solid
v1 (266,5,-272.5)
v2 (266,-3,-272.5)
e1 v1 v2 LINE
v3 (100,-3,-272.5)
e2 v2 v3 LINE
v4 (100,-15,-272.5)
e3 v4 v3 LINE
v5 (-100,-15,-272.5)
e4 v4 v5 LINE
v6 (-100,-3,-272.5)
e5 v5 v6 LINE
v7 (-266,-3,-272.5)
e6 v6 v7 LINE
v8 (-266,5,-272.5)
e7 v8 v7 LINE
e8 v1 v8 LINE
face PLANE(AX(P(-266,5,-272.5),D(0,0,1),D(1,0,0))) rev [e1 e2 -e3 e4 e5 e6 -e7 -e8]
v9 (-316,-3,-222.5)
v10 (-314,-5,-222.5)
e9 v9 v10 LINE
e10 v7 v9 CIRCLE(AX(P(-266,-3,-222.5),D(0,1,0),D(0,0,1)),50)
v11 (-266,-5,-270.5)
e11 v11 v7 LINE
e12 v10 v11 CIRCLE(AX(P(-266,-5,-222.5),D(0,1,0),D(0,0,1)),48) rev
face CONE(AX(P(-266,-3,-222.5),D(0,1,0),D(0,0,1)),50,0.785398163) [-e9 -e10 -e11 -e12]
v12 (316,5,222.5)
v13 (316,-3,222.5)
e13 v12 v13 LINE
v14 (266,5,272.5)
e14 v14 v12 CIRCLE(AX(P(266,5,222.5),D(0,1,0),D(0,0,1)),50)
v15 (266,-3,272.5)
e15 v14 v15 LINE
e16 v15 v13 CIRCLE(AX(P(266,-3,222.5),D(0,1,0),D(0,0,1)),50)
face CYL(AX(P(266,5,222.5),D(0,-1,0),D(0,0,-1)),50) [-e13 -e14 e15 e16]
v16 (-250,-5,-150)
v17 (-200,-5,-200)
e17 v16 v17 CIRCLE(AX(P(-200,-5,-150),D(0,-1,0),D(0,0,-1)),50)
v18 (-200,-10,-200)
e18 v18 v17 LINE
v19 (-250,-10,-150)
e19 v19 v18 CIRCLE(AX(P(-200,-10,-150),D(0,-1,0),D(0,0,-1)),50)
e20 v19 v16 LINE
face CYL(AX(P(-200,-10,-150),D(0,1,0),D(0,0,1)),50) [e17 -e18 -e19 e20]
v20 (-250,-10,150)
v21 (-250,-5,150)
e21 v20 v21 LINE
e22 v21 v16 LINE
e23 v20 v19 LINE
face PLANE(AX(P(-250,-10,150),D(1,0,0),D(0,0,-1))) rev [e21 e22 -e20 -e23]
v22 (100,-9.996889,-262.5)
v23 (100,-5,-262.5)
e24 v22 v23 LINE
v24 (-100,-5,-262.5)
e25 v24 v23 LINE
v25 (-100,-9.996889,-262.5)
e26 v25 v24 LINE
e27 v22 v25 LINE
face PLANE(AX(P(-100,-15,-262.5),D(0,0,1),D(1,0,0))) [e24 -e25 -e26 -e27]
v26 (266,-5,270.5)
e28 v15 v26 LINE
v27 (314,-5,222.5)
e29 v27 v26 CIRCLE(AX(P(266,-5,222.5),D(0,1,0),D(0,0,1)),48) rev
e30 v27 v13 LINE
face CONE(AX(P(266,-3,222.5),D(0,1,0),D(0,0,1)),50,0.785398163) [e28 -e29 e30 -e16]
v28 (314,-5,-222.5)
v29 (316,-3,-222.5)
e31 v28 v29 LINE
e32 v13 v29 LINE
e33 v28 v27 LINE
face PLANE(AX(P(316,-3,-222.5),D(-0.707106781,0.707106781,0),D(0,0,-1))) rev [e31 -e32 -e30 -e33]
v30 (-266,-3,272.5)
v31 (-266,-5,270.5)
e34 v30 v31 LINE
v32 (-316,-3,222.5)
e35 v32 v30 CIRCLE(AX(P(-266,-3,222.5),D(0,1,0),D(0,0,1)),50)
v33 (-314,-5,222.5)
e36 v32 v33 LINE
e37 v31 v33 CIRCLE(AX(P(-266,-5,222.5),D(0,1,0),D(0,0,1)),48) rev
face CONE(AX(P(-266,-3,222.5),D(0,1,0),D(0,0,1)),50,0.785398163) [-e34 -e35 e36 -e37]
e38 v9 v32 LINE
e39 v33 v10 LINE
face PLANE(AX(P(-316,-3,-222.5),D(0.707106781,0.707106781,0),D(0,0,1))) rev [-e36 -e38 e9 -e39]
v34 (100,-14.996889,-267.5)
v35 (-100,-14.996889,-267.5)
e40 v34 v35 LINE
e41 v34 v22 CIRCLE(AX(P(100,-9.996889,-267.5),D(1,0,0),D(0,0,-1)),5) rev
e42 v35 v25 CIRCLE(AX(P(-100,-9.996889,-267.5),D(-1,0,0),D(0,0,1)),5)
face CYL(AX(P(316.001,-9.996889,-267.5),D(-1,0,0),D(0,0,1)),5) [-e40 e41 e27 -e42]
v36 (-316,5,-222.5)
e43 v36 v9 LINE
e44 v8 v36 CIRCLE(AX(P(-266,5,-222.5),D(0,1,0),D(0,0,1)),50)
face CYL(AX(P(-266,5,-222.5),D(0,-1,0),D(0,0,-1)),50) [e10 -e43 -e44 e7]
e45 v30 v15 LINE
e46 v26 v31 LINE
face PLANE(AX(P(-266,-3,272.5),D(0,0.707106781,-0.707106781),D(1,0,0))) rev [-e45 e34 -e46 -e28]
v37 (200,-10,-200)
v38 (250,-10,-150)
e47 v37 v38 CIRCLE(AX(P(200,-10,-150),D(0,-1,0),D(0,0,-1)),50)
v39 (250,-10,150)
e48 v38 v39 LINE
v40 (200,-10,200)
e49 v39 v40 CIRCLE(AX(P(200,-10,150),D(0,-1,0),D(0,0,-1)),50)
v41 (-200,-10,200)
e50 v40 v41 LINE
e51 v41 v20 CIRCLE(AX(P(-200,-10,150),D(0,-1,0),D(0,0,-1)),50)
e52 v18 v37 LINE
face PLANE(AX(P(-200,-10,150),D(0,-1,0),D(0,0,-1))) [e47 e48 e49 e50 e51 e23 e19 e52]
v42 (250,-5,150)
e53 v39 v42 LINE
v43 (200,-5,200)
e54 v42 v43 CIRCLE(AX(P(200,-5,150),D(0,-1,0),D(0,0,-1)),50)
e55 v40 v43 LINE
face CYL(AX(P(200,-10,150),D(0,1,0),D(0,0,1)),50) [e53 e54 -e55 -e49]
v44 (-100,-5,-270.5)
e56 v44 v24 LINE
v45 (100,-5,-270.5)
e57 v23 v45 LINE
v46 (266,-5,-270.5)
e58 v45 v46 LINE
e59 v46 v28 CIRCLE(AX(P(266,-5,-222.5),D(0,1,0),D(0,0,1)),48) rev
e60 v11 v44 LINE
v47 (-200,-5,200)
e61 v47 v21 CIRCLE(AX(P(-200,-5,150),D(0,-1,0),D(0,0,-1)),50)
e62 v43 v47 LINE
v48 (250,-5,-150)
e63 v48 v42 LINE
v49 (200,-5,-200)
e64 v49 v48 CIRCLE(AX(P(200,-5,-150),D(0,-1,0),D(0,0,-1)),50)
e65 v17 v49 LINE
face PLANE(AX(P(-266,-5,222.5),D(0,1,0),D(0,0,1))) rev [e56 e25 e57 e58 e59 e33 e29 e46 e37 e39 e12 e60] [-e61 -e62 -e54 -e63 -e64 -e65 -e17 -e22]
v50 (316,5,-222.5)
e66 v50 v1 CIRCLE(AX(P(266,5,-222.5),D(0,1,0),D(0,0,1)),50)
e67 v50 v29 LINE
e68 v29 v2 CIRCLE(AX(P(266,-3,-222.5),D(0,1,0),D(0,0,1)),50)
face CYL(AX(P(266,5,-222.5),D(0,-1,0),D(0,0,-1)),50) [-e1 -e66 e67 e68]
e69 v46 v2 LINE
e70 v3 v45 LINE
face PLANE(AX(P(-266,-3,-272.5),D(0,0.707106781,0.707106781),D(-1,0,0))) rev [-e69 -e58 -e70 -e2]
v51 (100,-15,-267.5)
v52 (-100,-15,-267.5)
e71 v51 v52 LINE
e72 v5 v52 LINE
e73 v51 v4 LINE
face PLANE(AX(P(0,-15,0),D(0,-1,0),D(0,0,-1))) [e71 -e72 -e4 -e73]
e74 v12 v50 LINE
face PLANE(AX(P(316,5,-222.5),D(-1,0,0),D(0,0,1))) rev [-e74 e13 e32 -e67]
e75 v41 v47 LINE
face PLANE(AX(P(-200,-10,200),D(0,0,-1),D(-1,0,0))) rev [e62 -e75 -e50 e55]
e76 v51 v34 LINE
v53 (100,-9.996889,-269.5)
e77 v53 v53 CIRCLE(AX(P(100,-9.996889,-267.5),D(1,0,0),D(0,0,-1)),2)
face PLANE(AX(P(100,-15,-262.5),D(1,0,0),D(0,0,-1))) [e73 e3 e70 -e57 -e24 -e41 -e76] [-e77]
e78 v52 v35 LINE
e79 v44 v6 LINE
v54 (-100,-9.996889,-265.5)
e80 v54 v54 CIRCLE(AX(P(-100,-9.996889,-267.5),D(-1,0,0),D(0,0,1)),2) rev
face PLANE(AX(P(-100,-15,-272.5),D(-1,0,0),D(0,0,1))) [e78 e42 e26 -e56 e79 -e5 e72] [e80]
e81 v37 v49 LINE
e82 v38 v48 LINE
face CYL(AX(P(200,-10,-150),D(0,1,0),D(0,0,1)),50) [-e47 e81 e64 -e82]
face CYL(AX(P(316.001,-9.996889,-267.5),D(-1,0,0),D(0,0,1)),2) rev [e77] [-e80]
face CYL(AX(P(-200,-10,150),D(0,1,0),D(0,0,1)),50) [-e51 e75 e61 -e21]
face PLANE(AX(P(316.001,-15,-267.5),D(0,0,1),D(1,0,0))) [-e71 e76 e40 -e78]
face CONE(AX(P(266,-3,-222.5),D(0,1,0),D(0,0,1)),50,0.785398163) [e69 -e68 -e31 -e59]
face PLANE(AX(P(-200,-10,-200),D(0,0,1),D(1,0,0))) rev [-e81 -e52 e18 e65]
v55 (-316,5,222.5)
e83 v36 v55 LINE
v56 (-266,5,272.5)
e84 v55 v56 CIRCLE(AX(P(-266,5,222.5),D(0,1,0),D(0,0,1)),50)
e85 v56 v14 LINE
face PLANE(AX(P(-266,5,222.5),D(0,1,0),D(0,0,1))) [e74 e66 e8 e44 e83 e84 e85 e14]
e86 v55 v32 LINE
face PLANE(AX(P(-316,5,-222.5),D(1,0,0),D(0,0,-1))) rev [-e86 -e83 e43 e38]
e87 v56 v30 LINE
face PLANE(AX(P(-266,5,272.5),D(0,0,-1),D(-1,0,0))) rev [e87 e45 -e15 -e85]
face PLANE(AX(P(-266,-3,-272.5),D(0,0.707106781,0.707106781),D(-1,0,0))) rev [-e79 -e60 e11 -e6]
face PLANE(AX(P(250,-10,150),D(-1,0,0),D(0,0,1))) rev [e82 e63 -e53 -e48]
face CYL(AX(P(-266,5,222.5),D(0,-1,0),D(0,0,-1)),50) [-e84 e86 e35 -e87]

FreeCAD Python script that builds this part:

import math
import FreeCAD as App
import Part
import Sketcher
from FreeCAD import Vector
Q = App.Units.Quantity


def edges_at(feature, points):
    """Names of the edges that pass closest to the given points."""
    edges = feature.Shape.Edges
    near = lambda p: min(range(len(edges)), key=lambda i: edges[i].distToShape(Part.Vertex(*p))[0])
    return sorted({f"Edge{near(p) + 1}" for p in points})

doc = App.newDocument("Part")
body = doc.addObject("PartDesign::Body", "Body")

# Sketch on XZ plane
sketch1 = body.newObject("Sketcher::SketchObject", "Sketch")
sketch1.AttachmentSupport = (doc.getObject("XZ_Plane"), [""])
sketch1.MapMode = "FlatFace"
sketch1.addGeometry(Part.LineSegment(Vector(266, -272, 0), Vector(-266, -272, 0)), False)
sketch1.addGeometry(Part.ArcOfCircle(Part.Circle(Vector(-266, -222, 0), Vector(0, 0, 1), 50), math.radians(-180), math.radians(-90)), False)
sketch1.addGeometry(Part.LineSegment(Vector(-316, -222, 0), Vector(-316, 222, 0)), False)
sketch1.addGeometry(Part.ArcOfCircle(Part.Circle(Vector(-266, 222, 0), Vector(0, 0, 1), 50), math.radians(90), math.radians(180)), False)
sketch1.addGeometry(Part.LineSegment(Vector(-266, 272, 0), Vector(266, 272, 0)), False)
sketch1.addGeometry(Part.ArcOfCircle(Part.Circle(Vector(266, 222, 0), Vector(0, 0, 1), 50), math.radians(0), math.radians(90)), False)
sketch1.addGeometry(Part.LineSegment(Vector(316, 222, 0), Vector(316, -222, 0)), False)
sketch1.addGeometry(Part.ArcOfCircle(Part.Circle(Vector(266, -222, 0), Vector(0, 0, 1), 50), math.radians(-90), math.radians(0)), False)
sketch1.addConstraint(Sketcher.Constraint("Tangent", 0, 2, 1, 2))
sketch1.addConstraint(Sketcher.Constraint("Tangent", 1, 1, 2, 1))
sketch1.addConstraint(Sketcher.Constraint("Tangent", 2, 2, 3, 2))
sketch1.addConstraint(Sketcher.Constraint("Tangent", 3, 1, 4, 1))
sketch1.addConstraint(Sketcher.Constraint("Tangent", 4, 2, 5, 2))
sketch1.addConstraint(Sketcher.Constraint("Tangent", 5, 1, 6, 1))
sketch1.addConstraint(Sketcher.Constraint("Tangent", 6, 2, 7, 2))
sketch1.addConstraint(Sketcher.Constraint("Tangent", 7, 1, 0, 1))
sketch1.addConstraint(Sketcher.Constraint("Horizontal", 0))
sketch1.addConstraint(Sketcher.Constraint("Vertical", 2))
sketch1.addConstraint(Sketcher.Constraint("Horizontal", 4))
sketch1.addConstraint(Sketcher.Constraint("Vertical", 6))
sketch1.addConstraint(Sketcher.Constraint("Equal", 1, 3))
sketch1.addConstraint(Sketcher.Constraint("Equal", 3, 5))
sketch1.addConstraint(Sketcher.Constraint("Equal", 5, 7))
sketch1.addConstraint(Sketcher.Constraint("Symmetric", 1, 3, 5, 3, -1, 1))
sketch1.addConstraint(Sketcher.Constraint("Radius", 1, Q("50 mm")))
sketch1.addConstraint(Sketcher.Constraint("DistanceX", 0, 2, 0, 1, Q("532 mm")))
sketch1.addConstraint(Sketcher.Constraint("DistanceY", 2, 1, 2, 2, Q("445 mm")))
pad1 = body.newObject("PartDesign::Pad", "Pad")
pad1.Profile = sketch1
pad1.Length = 10
pad1.Midplane = True
doc.recompute()

chamfer = body.newObject("PartDesign::Chamfer", "Chamfer")
chamfer.Base = (pad1, edges_at(pad1, [
    (316, -5, 0),
    (301.355, -5, 257.855),
    (0, -5, 272.5),
    (-301.355, -5, 257.855),
    (-316, -5, 0),
    (-301.355, -5, -257.855),
    (0, -5, -272.5),
    (301.355, -5, -257.855),
]))
chamfer.Size = 2

# Sketch on XZ plane
sketch2 = body.newObject("Sketcher::SketchObject", "Sketch001")
sketch2.AttachmentSupport = (doc.getObject("XZ_Plane"), [""])
sketch2.MapMode = "FlatFace"
sketch2.AttachmentOffset = App.Placement(Vector(0, 0, -5), App.Rotation())
sketch2.addGeometry(Part.LineSegment(Vector(-100, -272, 0), Vector(-100, -262, 0)), False)
sketch2.addGeometry(Part.LineSegment(Vector(-100, -262, 0), Vector(100, -262, 0)), False)
sketch2.addGeometry(Part.LineSegment(Vector(100, -262, 0), Vector(100, -272, 0)), False)
sketch2.addGeometry(Part.LineSegment(Vector(100, -272, 0), Vector(-100, -272, 0)), False)
sketch2.addConstraint(Sketcher.Constraint("Coincident", 0, 2, 1, 1))
sketch2.addConstraint(Sketcher.Constraint("Coincident", 1, 2, 2, 1))
sketch2.addConstraint(Sketcher.Constraint("Coincident", 2, 2, 3, 1))
sketch2.addConstraint(Sketcher.Constraint("Coincident", 3, 2, 0, 1))
sketch2.addConstraint(Sketcher.Constraint("Vertical", 0))
sketch2.addConstraint(Sketcher.Constraint("Horizontal", 1))
sketch2.addConstraint(Sketcher.Constraint("Vertical", 2))
sketch2.addConstraint(Sketcher.Constraint("Horizontal", 3))
sketch2.addConstraint(Sketcher.Constraint("DistanceX", 1, 1, 1, 2, Q("200 mm")))
sketch2.addConstraint(Sketcher.Constraint("DistanceY", 0, 1, 0, 2, Q("10 mm")))
sketch2.addConstraint(Sketcher.Constraint("DistanceX", 0, 2, -1, 1, Q("100 mm")))
sketch2.addConstraint(Sketcher.Constraint("DistanceY", 0, 2, -1, 1, Q("262.5 mm")))
pad2 = body.newObject("PartDesign::Pad", "Pad001")
pad2.Profile = sketch2
pad2.Length = 20

# Sketch on YZ plane
sketch3 = body.newObject("Sketcher::SketchObject", "Sketch002")
sketch3.AttachmentSupport = (doc.getObject("YZ_Plane"), [""])
sketch3.MapMode = "FlatFace"
sketch3.addGeometry(Part.Circle(Vector(-10, -267.5, 0), Vector(0, 0, 1), 2), False)
sketch3.addConstraint(Sketcher.Constraint("Diameter", 0, Q("4 mm")))
sketch3.addConstraint(Sketcher.Constraint("DistanceY", 0, 3, -1, 1, Q("267.5 mm")))
sketch3.addConstraint(Sketcher.Constraint("DistanceX", 0, 3, -1, 1, Q("9.996889 mm")))
pocket1 = body.newObject("PartDesign::Pocket", "Pocket")
pocket1.Profile = sketch3
pocket1.Type = "UpToFirst"

# Sketch on YZ plane
sketch4 = body.newObject("Sketcher::SketchObject", "Sketch003")
sketch4.AttachmentSupport = (doc.getObject("YZ_Plane"), [""])
sketch4.MapMode = "FlatFace"
sketch4.addGeometry(Part.LineSegment(Vector(-15, -267.5, 0), Vector(-14.9969, -267.5, 0)), False)
sketch4.addGeometry(Part.ArcOfCircle(Part.Circle(Vector(-9.9969, -267.5, 0), Vector(0, 0, 1), 5), math.radians(90), math.radians(180)), False)
sketch4.addGeometry(Part.LineSegment(Vector(-9.9969, -262.5, 0), Vector(-15, -262.5, 0)), False)
sketch4.addGeometry(Part.LineSegment(Vector(-15, -262.5, 0), Vector(-15, -267.5, 0)), False)
sketch4.addConstraint(Sketcher.Constraint("Coincident", 0, 2, 1, 2))
sketch4.addConstraint(Sketcher.Constraint("Tangent", 1, 1, 2, 1))
sketch4.addConstraint(Sketcher.Constraint("Coincident", 2, 2, 3, 1))
sketch4.addConstraint(Sketcher.Constraint("Coincident", 3, 2, 0, 1))
sketch4.addConstraint(Sketcher.Constraint("Horizontal", 0))
sketch4.addConstraint(Sketcher.Constraint("Horizontal", 2))
sketch4.addConstraint(Sketcher.Constraint("Vertical", 3))
sketch4.addConstraint(Sketcher.Constraint("Horizontal", 1, 3, 0, 2))
sketch4.addConstraint(Sketcher.Constraint("Radius", 1, Q("5 mm")))
sketch4.addConstraint(Sketcher.Constraint("DistanceX", 2, 2, -1, 1, Q("15 mm")))
sketch4.addConstraint(Sketcher.Constraint("DistanceY", 1, 3, -1, 1, Q("267.5 mm")))
sketch4.addConstraint(Sketcher.Constraint("DistanceX", 0, 1, 0, 2, Q("0.003111 mm")))
pocket2 = body.newObject("PartDesign::Pocket", "Pocket001")
pocket2.Profile = sketch4
pocket2.Type = "UpToFirst"

# Sketch on YZ plane
sketch5 = body.newObject("Sketcher::SketchObject", "Sketch004")
sketch5.AttachmentSupport = (doc.getObject("YZ_Plane"), [""])
sketch5.MapMode = "FlatFace"
sketch5.addGeometry(Part.Circle(Vector(-10, -267.5, 0), Vector(0, 0, 1), 2), False)
sketch5.addConstraint(Sketcher.Constraint("Diameter", 0, Q("4 mm")))
sketch5.addConstraint(Sketcher.Constraint("DistanceY", 0, 3, -1, 1, Q("267.5 mm")))
sketch5.addConstraint(Sketcher.Constraint("DistanceX", 0, 3, -1, 1, Q("9.996889 mm")))
pocket3 = body.newObject("PartDesign::Pocket", "Pocket002")
pocket3.Profile = sketch5
pocket3.Type = "UpToFirst"
pocket3.Reversed = True

# Sketch on YZ plane
sketch6 = body.newObject("Sketcher::SketchObject", "Sketch005")
sketch6.AttachmentSupport = (doc.getObject("YZ_Plane"), [""])
sketch6.MapMode = "FlatFace"
sketch6.addGeometry(Part.LineSegment(Vector(-15, -267.5, 0), Vector(-14.9969, -267.5, 0)), False)
sketch6.addGeometry(Part.ArcOfCircle(Part.Circle(Vector(-9.9969, -267.5, 0), Vector(0, 0, 1), 5), math.radians(90), math.radians(180)), False)
sketch6.addGeometry(Part.LineSegment(Vector(-9.9969, -262.5, 0), Vector(-15, -262.5, 0)), False)
sketch6.addGeometry(Part.LineSegment(Vector(-15, -262.5, 0), Vector(-15, -267.5, 0)), False)
sketch6.addConstraint(Sketcher.Constraint("Coincident", 0, 2, 1, 2))
sketch6.addConstraint(Sketcher.Constraint("Tangent", 1, 1, 2, 1))
sketch6.addConstraint(Sketcher.Constraint("Coincident", 2, 2, 3, 1))
sketch6.addConstraint(Sketcher.Constraint("Coincident", 3, 2, 0, 1))
sketch6.addConstraint(Sketcher.Constraint("Horizontal", 0))
sketch6.addConstraint(Sketcher.Constraint("Horizontal", 2))
sketch6.addConstraint(Sketcher.Constraint("Vertical", 3))
sketch6.addConstraint(Sketcher.Constraint("Horizontal", 1, 3, 0, 2))
sketch6.addConstraint(Sketcher.Constraint("Radius", 1, Q("5 mm")))
sketch6.addConstraint(Sketcher.Constraint("DistanceX", 2, 2, -1, 1, Q("15 mm")))
sketch6.addConstraint(Sketcher.Constraint("DistanceY", 1, 3, -1, 1, Q("267.5 mm")))
sketch6.addConstraint(Sketcher.Constraint("DistanceX", 0, 1, 0, 2, Q("0.003111 mm")))
pocket4 = body.newObject("PartDesign::Pocket", "Pocket003")
pocket4.Profile = sketch6
pocket4.Type = "UpToFirst"
pocket4.Reversed = True

# Sketch on XZ plane
sketch7 = body.newObject("Sketcher::SketchObject", "Sketch006")
sketch7.AttachmentSupport = (doc.getObject("XZ_Plane"), [""])
sketch7.MapMode = "FlatFace"
sketch7.AttachmentOffset = App.Placement(Vector(0, 0, 5), App.Rotation())
sketch7.addGeometry(Part.LineSegment(Vector(200, 200, 0), Vector(-200, 200, 0)), False)
sketch7.addGeometry(Part.ArcOfCircle(Part.Circle(Vector(-200, 150, 0), Vector(0, 0, 1), 50), math.radians(90), math.radians(180)), False)
sketch7.addGeometry(Part.LineSegment(Vector(-250, 150, 0), Vector(-250, -150, 0)), False)
sketch7.addGeometry(Part.ArcOfCircle(Part.Circle(Vector(-200, -150, 0), Vector(0, 0, 1), 50), math.radians(-180), math.radians(-90)), False)
sketch7.addGeometry(Part.LineSegment(Vector(-200, -200, 0), Vector(200, -200, 0)), False)
sketch7.addGeometry(Part.ArcOfCircle(Part.Circle(Vector(200, -150, 0), Vector(0, 0, 1), 50), math.radians(-90), math.radians(0)), False)
sketch7.addGeometry(Part.LineSegment(Vector(250, -150, 0), Vector(250, 150, 0)), False)
sketch7.addGeometry(Part.ArcOfCircle(Part.Circle(Vector(200, 150, 0), Vector(0, 0, 1), 50), math.radians(0), math.radians(90)), False)
sketch7.addConstraint(Sketcher.Constraint("Tangent", 0, 2, 1, 1))
sketch7.addConstraint(Sketcher.Constraint("Tangent", 1, 2, 2, 1))
sketch7.addConstraint(Sketcher.Constraint("Tangent", 2, 2, 3, 1))
sketch7.addConstraint(Sketcher.Constraint("Tangent", 3, 2, 4, 1))
sketch7.addConstraint(Sketcher.Constraint("Tangent", 4, 2, 5, 1))
sketch7.addConstraint(Sketcher.Constraint("Tangent", 5, 2, 6, 1))
sketch7.addConstraint(Sketcher.Constraint("Tangent", 6, 2, 7, 1))
sketch7.addConstraint(Sketcher.Constraint("Tangent", 7, 2, 0, 1))
sketch7.addConstraint(Sketcher.Constraint("Horizontal", 0))
sketch7.addConstraint(Sketcher.Constraint("Vertical", 2))
sketch7.addConstraint(Sketcher.Constraint("Horizontal", 4))
sketch7.addConstraint(Sketcher.Constraint("Vertical", 6))
sketch7.addConstraint(Sketcher.Constraint("Equal", 1, 3))
sketch7.addConstraint(Sketcher.Constraint("Equal", 3, 5))
sketch7.addConstraint(Sketcher.Constraint("Equal", 5, 7))
sketch7.addConstraint(Sketcher.Constraint("Symmetric", 1, 3, 5, 3, -1, 1))
sketch7.addConstraint(Sketcher.Constraint("Radius", 1, Q("50 mm")))
sketch7.addConstraint(Sketcher.Constraint("DistanceX", 0, 2, 0, 1, Q("400 mm")))
sketch7.addConstraint(Sketcher.Constraint("DistanceY", 2, 2, 2, 1, Q("300 mm")))
pad3 = body.newObject("PartDesign::Pad", "Pad002")
pad3.Profile = sketch7
pad3.Length = 5

doc.recompute()
